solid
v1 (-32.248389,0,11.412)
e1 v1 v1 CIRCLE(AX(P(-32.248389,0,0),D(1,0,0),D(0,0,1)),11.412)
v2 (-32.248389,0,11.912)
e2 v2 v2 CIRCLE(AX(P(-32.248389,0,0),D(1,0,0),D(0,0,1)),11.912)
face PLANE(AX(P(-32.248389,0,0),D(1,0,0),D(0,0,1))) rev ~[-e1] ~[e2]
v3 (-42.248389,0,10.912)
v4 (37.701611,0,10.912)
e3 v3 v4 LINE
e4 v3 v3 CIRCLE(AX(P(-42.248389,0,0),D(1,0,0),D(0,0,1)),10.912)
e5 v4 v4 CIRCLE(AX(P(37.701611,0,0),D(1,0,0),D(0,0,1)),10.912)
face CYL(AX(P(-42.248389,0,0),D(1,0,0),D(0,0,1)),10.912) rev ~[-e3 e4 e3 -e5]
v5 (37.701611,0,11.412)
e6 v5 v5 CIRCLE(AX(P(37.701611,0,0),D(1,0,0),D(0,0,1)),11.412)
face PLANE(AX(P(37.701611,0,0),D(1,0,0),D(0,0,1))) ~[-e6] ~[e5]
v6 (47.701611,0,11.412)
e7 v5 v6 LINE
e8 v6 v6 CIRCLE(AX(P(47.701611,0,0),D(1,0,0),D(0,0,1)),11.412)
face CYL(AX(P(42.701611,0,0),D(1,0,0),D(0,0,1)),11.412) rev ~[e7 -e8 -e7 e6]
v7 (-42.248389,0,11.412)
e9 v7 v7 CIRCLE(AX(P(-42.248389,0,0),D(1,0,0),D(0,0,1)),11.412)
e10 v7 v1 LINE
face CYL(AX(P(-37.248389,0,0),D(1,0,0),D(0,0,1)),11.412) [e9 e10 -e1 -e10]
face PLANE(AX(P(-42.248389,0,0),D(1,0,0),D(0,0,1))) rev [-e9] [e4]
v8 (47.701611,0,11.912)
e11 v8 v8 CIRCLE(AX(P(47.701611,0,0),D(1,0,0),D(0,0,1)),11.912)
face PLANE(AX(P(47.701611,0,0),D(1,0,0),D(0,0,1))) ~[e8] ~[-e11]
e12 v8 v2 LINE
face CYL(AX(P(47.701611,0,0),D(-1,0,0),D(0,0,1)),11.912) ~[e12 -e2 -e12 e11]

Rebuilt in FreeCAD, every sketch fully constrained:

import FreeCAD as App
import Part
import Sketcher

V = App.Vector
Q = App.Units.Quantity


def add_polygon(sketch, points):
    """Adds a closed chain of lines whose ends are joined by coincident constraints."""
    first, n = sketch.GeometryCount, len(points)
    for a, b in zip(points, points[1:] + points[:1]):
        sketch.addGeometry(Part.LineSegment(App.Vector(*a, 0), App.Vector(*b, 0)), False)
    for i in range(n):
        sketch.addConstraint(Sketcher.Constraint("Coincident", first + i, 2, first + (i + 1) % n, 1))

doc = App.newDocument("Part")
body = doc.addObject("PartDesign::Body", "Body")

sketch1 = body.newObject("Sketcher::SketchObject", "Sketch")
sketch1.AttachmentSupport = (doc.getObject("XZ_Plane"), [""])
sketch1.MapMode = "FlatFace"
add_polygon(sketch1, [(-32.248389, 11.912), (-32.248389, 11.412), (-42.248389, 11.412), (-42.248389, 10.912), (37.701611, 10.912), (37.701611, 11.412), (47.701611, 11.412), (47.701611, 11.912)])
sketch1.addConstraint(Sketcher.Constraint("Vertical", 0))
sketch1.addConstraint(Sketcher.Constraint("Horizontal", 1))
sketch1.addConstraint(Sketcher.Constraint("Vertical", 2))
sketch1.addConstraint(Sketcher.Constraint("Horizontal", 3))
sketch1.addConstraint(Sketcher.Constraint("Vertical", 4))
sketch1.addConstraint(Sketcher.Constraint("Horizontal", 5))
sketch1.addConstraint(Sketcher.Constraint("Vertical", 6))
sketch1.addConstraint(Sketcher.Constraint("Horizontal", 7))
sketch1.addConstraint(Sketcher.Constraint("Horizontal", 1, 2, 4, 2))
sketch1.addConstraint(Sketcher.Constraint("Equal", 1, 5))
sketch1.addConstraint(Sketcher.Constraint("Equal", 0, 2))
sketch1.addConstraint(Sketcher.Constraint("DistanceX", 1, 2, 1, 1, Q("10 mm")))
sketch1.addConstraint(Sketcher.Constraint("DistanceY", 0, 2, 0, 1, Q("0.5 mm")))
sketch1.addConstraint(Sketcher.Constraint("DistanceX", 3, 1, 3, 2, Q("79.95 mm")))
sketch1.addConstraint(Sketcher.Constraint("DistanceY", -1, 1, 0, 2, Q("11.412 mm")))
sketch1.addConstraint(Sketcher.Constraint("DistanceX", 0, 2, -1, 1, Q("32.248389 mm")))
revolution = body.newObject("PartDesign::Revolution", "Revolution")
revolution.Profile = sketch1
revolution.ReferenceAxis = (sketch1, ["H_Axis"])
revolution.Angle = 360

doc.recompute()
